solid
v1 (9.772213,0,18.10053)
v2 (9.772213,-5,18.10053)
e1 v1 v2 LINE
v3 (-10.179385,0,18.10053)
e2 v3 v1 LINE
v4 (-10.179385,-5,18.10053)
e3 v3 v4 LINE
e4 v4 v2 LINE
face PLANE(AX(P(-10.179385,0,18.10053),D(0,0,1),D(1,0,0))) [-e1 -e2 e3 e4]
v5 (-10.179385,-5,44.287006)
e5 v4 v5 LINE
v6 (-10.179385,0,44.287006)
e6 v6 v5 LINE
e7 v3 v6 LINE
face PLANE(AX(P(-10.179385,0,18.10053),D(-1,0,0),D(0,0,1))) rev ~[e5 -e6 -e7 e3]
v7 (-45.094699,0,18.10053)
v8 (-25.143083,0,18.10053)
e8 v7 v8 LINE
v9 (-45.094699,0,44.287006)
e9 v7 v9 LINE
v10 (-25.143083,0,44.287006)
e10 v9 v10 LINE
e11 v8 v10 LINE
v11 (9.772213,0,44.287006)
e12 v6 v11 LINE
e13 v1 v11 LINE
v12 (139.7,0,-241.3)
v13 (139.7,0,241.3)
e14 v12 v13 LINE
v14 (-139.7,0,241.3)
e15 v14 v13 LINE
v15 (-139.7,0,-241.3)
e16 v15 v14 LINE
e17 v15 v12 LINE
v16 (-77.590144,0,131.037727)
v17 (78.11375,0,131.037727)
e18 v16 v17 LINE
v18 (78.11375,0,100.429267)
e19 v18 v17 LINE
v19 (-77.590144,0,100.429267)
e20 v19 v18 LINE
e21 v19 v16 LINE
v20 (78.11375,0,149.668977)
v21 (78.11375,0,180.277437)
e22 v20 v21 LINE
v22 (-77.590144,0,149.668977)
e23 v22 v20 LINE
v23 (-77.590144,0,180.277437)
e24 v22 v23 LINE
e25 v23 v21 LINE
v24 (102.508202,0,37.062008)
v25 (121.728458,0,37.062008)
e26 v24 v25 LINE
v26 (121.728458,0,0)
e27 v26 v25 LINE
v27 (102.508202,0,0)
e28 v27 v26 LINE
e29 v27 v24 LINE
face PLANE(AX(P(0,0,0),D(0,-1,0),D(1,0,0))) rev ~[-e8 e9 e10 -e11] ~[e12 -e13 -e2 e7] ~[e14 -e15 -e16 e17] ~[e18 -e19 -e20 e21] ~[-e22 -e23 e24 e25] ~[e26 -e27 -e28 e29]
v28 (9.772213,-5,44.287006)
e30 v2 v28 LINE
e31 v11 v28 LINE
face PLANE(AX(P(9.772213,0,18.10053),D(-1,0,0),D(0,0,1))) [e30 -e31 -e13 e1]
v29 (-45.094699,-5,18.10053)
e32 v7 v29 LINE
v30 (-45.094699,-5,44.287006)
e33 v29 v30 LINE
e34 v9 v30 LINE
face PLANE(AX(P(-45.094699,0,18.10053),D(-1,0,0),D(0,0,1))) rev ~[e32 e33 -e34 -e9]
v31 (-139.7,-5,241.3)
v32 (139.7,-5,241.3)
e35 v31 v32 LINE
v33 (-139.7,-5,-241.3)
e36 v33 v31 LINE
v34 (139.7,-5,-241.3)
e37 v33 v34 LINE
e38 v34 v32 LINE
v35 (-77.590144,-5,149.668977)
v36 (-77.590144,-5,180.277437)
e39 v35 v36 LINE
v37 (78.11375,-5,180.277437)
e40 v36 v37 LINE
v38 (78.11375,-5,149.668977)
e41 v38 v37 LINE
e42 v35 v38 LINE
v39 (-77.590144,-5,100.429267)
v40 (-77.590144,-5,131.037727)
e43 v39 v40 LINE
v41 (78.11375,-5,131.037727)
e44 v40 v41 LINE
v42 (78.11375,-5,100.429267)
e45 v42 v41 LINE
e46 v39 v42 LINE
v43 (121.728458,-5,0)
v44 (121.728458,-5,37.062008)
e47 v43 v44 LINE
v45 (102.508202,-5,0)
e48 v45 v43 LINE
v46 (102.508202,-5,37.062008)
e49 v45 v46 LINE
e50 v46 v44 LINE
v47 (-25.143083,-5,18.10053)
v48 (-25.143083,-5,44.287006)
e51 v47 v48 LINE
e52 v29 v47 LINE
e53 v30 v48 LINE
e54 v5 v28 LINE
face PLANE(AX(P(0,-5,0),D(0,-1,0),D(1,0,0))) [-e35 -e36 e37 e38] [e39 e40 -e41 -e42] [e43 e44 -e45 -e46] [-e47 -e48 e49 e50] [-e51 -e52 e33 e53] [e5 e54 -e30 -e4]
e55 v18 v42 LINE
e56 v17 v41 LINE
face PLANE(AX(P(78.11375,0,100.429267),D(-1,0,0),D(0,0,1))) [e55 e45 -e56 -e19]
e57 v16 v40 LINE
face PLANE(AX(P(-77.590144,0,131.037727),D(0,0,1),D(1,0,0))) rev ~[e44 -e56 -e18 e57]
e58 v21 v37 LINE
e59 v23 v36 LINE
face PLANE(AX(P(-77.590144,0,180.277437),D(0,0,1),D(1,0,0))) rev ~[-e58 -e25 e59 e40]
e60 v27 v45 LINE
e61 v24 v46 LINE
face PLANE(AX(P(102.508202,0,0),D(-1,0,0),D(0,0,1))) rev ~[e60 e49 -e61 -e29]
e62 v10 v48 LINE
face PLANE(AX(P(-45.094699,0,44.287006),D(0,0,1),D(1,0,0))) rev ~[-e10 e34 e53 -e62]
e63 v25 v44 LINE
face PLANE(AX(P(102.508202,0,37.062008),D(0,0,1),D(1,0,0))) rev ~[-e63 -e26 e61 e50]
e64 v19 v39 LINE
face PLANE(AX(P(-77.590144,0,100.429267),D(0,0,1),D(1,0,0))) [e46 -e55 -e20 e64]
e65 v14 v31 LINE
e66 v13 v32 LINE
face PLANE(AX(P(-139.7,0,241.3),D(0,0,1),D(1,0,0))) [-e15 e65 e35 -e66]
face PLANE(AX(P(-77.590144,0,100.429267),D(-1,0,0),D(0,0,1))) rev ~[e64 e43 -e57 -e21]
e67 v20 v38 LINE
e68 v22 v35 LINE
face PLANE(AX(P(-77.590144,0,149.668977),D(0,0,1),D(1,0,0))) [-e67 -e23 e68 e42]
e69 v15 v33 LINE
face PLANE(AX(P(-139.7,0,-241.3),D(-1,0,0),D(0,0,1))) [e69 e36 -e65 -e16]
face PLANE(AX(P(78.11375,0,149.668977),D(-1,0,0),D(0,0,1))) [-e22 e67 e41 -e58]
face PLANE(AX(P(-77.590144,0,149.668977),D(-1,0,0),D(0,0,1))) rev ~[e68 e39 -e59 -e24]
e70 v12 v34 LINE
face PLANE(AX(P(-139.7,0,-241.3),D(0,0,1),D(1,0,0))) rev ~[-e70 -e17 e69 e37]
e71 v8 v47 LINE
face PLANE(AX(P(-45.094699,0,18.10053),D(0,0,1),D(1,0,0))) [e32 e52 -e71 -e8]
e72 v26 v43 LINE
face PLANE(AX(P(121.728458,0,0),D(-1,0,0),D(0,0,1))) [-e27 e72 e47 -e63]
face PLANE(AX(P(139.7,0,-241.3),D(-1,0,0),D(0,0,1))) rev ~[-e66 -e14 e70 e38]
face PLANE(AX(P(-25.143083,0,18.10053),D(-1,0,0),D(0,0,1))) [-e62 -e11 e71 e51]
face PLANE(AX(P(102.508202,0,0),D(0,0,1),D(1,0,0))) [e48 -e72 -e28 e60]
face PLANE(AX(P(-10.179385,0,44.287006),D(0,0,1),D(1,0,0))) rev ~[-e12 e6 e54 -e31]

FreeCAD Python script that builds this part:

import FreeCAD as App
import Part
import Sketcher
from FreeCAD import Vector
Q = App.Units.Quantity

doc = App.newDocument("Part")
params = doc.addObject("Spreadsheet::Sheet", "Params")
for row, (alias, value) in enumerate([
    ("sketch1_width", "11 in"),
    ("sketch1_height", "19 in"),
    ("pad1_length", "5 mm"),
], start=1):
    params.set(f"A{row}", alias)
    params.set(f"B{row}", "=" + value)
    params.setAlias(f"B{row}", alias)

body = doc.addObject("PartDesign::Body", "Body")

# Sketch on XZ plane
sketch1 = body.newObject("Sketcher::SketchObject", "Sketch")
sketch1.AttachmentSupport = (doc.getObject("XZ_Plane"), [""])
sketch1.MapMode = "FlatFace"
sketch1.addGeometry([
    Part.LineSegment(Vector(-140, 241, 0), Vector(-140, -241, 0)),  # 0
    Part.LineSegment(Vector(-140, -241, 0), Vector(140, -241, 0)),  # 1
    Part.LineSegment(Vector(140, -241, 0), Vector(140, 241, 0)),  # 2
    Part.LineSegment(Vector(140, 241, 0), Vector(-140, 241, 0)),  # 3
    Part.LineSegment(Vector(-25, 18, 0), Vector(-45, 18, 0)),  # 4
    Part.LineSegment(Vector(-45, 18, 0), Vector(-45, 44, 0)),  # 5
    Part.LineSegment(Vector(-45, 44, 0), Vector(-25, 44, 0)),  # 6
    Part.LineSegment(Vector(-25, 44, 0), Vector(-25, 18, 0)),  # 7
    Part.LineSegment(Vector(10, 18, 0), Vector(-10, 18, 0)),  # 8
    Part.LineSegment(Vector(-10, 18, 0), Vector(-10, 44, 0)),  # 9
    Part.LineSegment(Vector(-10, 44, 0), Vector(10, 44, 0)),  # 10
    Part.LineSegment(Vector(10, 44, 0), Vector(10, 18, 0)),  # 11
    Part.LineSegment(Vector(122, 0, 0), Vector(103, 0, 0)),  # 12
    Part.LineSegment(Vector(103, 0, 0), Vector(103, 37, 0)),  # 13
    Part.LineSegment(Vector(103, 37, 0), Vector(122, 37, 0)),  # 14
    Part.LineSegment(Vector(122, 37, 0), Vector(122, 0, 0)),  # 15
    Part.LineSegment(Vector(78, 100, 0), Vector(-78, 100, 0)),  # 16
    Part.LineSegment(Vector(-78, 100, 0), Vector(-78, 131, 0)),  # 17
    Part.LineSegment(Vector(-78, 131, 0), Vector(78, 131, 0)),  # 18
    Part.LineSegment(Vector(78, 131, 0), Vector(78, 100, 0)),  # 19
    Part.LineSegment(Vector(78, 150, 0), Vector(-78, 150, 0)),  # 20
    Part.LineSegment(Vector(-78, 150, 0), Vector(-78, 180, 0)),  # 21
    Part.LineSegment(Vector(-78, 180, 0), Vector(78, 180, 0)),  # 22
    Part.LineSegment(Vector(78, 180, 0), Vector(78, 150, 0)),  # 23
], False)
sketch1.addConstraint([
    Sketcher.Constraint("Coincident", 0, 2, 1, 1),
    Sketcher.Constraint("Coincident", 1, 2, 2, 1),
    Sketcher.Constraint("Coincident", 2, 2, 3, 1),
    Sketcher.Constraint("Coincident", 3, 2, 0, 1),
    Sketcher.Constraint("Coincident", 4, 2, 5, 1),
    Sketcher.Constraint("Coincident", 5, 2, 6, 1),
    Sketcher.Constraint("Coincident", 6, 2, 7, 1),
    Sketcher.Constraint("Coincident", 7, 2, 4, 1),
    Sketcher.Constraint("Coincident", 8, 2, 9, 1),
    Sketcher.Constraint("Coincident", 9, 2, 10, 1),
    Sketcher.Constraint("Coincident", 10, 2, 11, 1),
    Sketcher.Constraint("Coincident", 11, 2, 8, 1),
    Sketcher.Constraint("Coincident", 12, 2, 13, 1),
    Sketcher.Constraint("Coincident", 13, 2, 14, 1),
    Sketcher.Constraint("Coincident", 14, 2, 15, 1),
    Sketcher.Constraint("Coincident", 15, 2, 12, 1),
    Sketcher.Constraint("Coincident", 16, 2, 17, 1),
    Sketcher.Constraint("Coincident", 17, 2, 18, 1),
    Sketcher.Constraint("Coincident", 18, 2, 19, 1),
    Sketcher.Constraint("Coincident", 19, 2, 16, 1),
    Sketcher.Constraint("Coincident", 20, 2, 21, 1),
    Sketcher.Constraint("Coincident", 21, 2, 22, 1),
    Sketcher.Constraint("Coincident", 22, 2, 23, 1),
    Sketcher.Constraint("Coincident", 23, 2, 20, 1),
    Sketcher.Constraint("Vertical", 0),
    Sketcher.Constraint("Horizontal", 1),
    Sketcher.Constraint("Vertical", 2),
    Sketcher.Constraint("Horizontal", 3),
    Sketcher.Constraint("Horizontal", 4),
    Sketcher.Constraint("Vertical", 5),
    Sketcher.Constraint("Horizontal", 6),
    Sketcher.Constraint("Vertical", 7),
    Sketcher.Constraint("Horizontal", 8),
    Sketcher.Constraint("Vertical", 9),
    Sketcher.Constraint("Horizontal", 10),
    Sketcher.Constraint("Vertical", 11),
    Sketcher.Constraint("Horizontal", 12),
    Sketcher.Constraint("Vertical", 13),
    Sketcher.Constraint("Horizontal", 14),
    Sketcher.Constraint("Vertical", 15),
    Sketcher.Constraint("Horizontal", 16),
    Sketcher.Constraint("Vertical", 17),
    Sketcher.Constraint("Horizontal", 18),
    Sketcher.Constraint("Vertical", 19),
    Sketcher.Constraint("Horizontal", 20),
    Sketcher.Constraint("Vertical", 21),
    Sketcher.Constraint("Horizontal", 22),
    Sketcher.Constraint("Vertical", 23),
    Sketcher.Constraint("Symmetric", 0, 2, 2, 2, -1, 1),
    Sketcher.Constraint("PointOnObject", 12, 2, -1),
    Sketcher.Constraint("Horizontal", 7, 2, 8, 2),
    Sketcher.Constraint("Horizontal", 6, 2, 9, 2),
    Sketcher.Constraint("Vertical", 17, 2, 20, 2),
    Sketcher.Constraint("Vertical", 19, 2, 22, 2),
    Sketcher.Constraint("Equal", 19, 21),
    Sketcher.Constraint("DistanceX", 1, 1, 1, 2, Q("11 in")),
    Sketcher.Constraint("DistanceY", 0, 2, 0, 1, Q("19 in")),
    Sketcher.Constraint("DistanceX", 8, 2, 8, 1, Q("19.951598 mm")),
    Sketcher.Constraint("DistanceY", 17, 1, 17, 2, Q("30.60846 mm")),
    Sketcher.Constraint("DistanceX", 4, 2, -1, 1, Q("45.094699 mm")),
    Sketcher.Constraint("DistanceX", -1, 1, 12, 2, Q("102.508202 mm")),
    Sketcher.Constraint("DistanceX", 7, 2, 8, 2, Q("14.963698 mm")),
    Sketcher.Constraint("DistanceY", 13, 2, 10, 2, Q("7.224998 mm")),
    Sketcher.Constraint("DistanceX", 4, 2, 4, 1, Q("19.951616 mm")),
    Sketcher.Constraint("DistanceX", 12, 2, 12, 1, Q("19.220256 mm")),
    Sketcher.Constraint("DistanceX", 16, 2, 16, 1, Q("155.703895 mm")),
    Sketcher.Constraint("DistanceY", 5, 1, 5, 2, Q("26.186477 mm")),
    Sketcher.Constraint("DistanceY", 13, 1, 13, 2, Q("37.062008 mm")),
    Sketcher.Constraint("DistanceX", -1, 1, 18, 2, Q("78.11375 mm")),
    Sketcher.Constraint("DistanceY", 5, 2, 16, 2, Q("56.14226 mm")),
    Sketcher.Constraint("DistanceY", 17, 2, 20, 2, Q("18.63125 mm")),
])
sketch1.setExpression("Constraints[55]", "Params.sketch1_width")
sketch1.setExpression("Constraints[56]", "Params.sketch1_height")
pad1 = body.newObject("PartDesign::Pad", "Pad")
pad1.Profile = sketch1
pad1.setExpression("Length", "Params.pad1_length")

doc.recompute()
